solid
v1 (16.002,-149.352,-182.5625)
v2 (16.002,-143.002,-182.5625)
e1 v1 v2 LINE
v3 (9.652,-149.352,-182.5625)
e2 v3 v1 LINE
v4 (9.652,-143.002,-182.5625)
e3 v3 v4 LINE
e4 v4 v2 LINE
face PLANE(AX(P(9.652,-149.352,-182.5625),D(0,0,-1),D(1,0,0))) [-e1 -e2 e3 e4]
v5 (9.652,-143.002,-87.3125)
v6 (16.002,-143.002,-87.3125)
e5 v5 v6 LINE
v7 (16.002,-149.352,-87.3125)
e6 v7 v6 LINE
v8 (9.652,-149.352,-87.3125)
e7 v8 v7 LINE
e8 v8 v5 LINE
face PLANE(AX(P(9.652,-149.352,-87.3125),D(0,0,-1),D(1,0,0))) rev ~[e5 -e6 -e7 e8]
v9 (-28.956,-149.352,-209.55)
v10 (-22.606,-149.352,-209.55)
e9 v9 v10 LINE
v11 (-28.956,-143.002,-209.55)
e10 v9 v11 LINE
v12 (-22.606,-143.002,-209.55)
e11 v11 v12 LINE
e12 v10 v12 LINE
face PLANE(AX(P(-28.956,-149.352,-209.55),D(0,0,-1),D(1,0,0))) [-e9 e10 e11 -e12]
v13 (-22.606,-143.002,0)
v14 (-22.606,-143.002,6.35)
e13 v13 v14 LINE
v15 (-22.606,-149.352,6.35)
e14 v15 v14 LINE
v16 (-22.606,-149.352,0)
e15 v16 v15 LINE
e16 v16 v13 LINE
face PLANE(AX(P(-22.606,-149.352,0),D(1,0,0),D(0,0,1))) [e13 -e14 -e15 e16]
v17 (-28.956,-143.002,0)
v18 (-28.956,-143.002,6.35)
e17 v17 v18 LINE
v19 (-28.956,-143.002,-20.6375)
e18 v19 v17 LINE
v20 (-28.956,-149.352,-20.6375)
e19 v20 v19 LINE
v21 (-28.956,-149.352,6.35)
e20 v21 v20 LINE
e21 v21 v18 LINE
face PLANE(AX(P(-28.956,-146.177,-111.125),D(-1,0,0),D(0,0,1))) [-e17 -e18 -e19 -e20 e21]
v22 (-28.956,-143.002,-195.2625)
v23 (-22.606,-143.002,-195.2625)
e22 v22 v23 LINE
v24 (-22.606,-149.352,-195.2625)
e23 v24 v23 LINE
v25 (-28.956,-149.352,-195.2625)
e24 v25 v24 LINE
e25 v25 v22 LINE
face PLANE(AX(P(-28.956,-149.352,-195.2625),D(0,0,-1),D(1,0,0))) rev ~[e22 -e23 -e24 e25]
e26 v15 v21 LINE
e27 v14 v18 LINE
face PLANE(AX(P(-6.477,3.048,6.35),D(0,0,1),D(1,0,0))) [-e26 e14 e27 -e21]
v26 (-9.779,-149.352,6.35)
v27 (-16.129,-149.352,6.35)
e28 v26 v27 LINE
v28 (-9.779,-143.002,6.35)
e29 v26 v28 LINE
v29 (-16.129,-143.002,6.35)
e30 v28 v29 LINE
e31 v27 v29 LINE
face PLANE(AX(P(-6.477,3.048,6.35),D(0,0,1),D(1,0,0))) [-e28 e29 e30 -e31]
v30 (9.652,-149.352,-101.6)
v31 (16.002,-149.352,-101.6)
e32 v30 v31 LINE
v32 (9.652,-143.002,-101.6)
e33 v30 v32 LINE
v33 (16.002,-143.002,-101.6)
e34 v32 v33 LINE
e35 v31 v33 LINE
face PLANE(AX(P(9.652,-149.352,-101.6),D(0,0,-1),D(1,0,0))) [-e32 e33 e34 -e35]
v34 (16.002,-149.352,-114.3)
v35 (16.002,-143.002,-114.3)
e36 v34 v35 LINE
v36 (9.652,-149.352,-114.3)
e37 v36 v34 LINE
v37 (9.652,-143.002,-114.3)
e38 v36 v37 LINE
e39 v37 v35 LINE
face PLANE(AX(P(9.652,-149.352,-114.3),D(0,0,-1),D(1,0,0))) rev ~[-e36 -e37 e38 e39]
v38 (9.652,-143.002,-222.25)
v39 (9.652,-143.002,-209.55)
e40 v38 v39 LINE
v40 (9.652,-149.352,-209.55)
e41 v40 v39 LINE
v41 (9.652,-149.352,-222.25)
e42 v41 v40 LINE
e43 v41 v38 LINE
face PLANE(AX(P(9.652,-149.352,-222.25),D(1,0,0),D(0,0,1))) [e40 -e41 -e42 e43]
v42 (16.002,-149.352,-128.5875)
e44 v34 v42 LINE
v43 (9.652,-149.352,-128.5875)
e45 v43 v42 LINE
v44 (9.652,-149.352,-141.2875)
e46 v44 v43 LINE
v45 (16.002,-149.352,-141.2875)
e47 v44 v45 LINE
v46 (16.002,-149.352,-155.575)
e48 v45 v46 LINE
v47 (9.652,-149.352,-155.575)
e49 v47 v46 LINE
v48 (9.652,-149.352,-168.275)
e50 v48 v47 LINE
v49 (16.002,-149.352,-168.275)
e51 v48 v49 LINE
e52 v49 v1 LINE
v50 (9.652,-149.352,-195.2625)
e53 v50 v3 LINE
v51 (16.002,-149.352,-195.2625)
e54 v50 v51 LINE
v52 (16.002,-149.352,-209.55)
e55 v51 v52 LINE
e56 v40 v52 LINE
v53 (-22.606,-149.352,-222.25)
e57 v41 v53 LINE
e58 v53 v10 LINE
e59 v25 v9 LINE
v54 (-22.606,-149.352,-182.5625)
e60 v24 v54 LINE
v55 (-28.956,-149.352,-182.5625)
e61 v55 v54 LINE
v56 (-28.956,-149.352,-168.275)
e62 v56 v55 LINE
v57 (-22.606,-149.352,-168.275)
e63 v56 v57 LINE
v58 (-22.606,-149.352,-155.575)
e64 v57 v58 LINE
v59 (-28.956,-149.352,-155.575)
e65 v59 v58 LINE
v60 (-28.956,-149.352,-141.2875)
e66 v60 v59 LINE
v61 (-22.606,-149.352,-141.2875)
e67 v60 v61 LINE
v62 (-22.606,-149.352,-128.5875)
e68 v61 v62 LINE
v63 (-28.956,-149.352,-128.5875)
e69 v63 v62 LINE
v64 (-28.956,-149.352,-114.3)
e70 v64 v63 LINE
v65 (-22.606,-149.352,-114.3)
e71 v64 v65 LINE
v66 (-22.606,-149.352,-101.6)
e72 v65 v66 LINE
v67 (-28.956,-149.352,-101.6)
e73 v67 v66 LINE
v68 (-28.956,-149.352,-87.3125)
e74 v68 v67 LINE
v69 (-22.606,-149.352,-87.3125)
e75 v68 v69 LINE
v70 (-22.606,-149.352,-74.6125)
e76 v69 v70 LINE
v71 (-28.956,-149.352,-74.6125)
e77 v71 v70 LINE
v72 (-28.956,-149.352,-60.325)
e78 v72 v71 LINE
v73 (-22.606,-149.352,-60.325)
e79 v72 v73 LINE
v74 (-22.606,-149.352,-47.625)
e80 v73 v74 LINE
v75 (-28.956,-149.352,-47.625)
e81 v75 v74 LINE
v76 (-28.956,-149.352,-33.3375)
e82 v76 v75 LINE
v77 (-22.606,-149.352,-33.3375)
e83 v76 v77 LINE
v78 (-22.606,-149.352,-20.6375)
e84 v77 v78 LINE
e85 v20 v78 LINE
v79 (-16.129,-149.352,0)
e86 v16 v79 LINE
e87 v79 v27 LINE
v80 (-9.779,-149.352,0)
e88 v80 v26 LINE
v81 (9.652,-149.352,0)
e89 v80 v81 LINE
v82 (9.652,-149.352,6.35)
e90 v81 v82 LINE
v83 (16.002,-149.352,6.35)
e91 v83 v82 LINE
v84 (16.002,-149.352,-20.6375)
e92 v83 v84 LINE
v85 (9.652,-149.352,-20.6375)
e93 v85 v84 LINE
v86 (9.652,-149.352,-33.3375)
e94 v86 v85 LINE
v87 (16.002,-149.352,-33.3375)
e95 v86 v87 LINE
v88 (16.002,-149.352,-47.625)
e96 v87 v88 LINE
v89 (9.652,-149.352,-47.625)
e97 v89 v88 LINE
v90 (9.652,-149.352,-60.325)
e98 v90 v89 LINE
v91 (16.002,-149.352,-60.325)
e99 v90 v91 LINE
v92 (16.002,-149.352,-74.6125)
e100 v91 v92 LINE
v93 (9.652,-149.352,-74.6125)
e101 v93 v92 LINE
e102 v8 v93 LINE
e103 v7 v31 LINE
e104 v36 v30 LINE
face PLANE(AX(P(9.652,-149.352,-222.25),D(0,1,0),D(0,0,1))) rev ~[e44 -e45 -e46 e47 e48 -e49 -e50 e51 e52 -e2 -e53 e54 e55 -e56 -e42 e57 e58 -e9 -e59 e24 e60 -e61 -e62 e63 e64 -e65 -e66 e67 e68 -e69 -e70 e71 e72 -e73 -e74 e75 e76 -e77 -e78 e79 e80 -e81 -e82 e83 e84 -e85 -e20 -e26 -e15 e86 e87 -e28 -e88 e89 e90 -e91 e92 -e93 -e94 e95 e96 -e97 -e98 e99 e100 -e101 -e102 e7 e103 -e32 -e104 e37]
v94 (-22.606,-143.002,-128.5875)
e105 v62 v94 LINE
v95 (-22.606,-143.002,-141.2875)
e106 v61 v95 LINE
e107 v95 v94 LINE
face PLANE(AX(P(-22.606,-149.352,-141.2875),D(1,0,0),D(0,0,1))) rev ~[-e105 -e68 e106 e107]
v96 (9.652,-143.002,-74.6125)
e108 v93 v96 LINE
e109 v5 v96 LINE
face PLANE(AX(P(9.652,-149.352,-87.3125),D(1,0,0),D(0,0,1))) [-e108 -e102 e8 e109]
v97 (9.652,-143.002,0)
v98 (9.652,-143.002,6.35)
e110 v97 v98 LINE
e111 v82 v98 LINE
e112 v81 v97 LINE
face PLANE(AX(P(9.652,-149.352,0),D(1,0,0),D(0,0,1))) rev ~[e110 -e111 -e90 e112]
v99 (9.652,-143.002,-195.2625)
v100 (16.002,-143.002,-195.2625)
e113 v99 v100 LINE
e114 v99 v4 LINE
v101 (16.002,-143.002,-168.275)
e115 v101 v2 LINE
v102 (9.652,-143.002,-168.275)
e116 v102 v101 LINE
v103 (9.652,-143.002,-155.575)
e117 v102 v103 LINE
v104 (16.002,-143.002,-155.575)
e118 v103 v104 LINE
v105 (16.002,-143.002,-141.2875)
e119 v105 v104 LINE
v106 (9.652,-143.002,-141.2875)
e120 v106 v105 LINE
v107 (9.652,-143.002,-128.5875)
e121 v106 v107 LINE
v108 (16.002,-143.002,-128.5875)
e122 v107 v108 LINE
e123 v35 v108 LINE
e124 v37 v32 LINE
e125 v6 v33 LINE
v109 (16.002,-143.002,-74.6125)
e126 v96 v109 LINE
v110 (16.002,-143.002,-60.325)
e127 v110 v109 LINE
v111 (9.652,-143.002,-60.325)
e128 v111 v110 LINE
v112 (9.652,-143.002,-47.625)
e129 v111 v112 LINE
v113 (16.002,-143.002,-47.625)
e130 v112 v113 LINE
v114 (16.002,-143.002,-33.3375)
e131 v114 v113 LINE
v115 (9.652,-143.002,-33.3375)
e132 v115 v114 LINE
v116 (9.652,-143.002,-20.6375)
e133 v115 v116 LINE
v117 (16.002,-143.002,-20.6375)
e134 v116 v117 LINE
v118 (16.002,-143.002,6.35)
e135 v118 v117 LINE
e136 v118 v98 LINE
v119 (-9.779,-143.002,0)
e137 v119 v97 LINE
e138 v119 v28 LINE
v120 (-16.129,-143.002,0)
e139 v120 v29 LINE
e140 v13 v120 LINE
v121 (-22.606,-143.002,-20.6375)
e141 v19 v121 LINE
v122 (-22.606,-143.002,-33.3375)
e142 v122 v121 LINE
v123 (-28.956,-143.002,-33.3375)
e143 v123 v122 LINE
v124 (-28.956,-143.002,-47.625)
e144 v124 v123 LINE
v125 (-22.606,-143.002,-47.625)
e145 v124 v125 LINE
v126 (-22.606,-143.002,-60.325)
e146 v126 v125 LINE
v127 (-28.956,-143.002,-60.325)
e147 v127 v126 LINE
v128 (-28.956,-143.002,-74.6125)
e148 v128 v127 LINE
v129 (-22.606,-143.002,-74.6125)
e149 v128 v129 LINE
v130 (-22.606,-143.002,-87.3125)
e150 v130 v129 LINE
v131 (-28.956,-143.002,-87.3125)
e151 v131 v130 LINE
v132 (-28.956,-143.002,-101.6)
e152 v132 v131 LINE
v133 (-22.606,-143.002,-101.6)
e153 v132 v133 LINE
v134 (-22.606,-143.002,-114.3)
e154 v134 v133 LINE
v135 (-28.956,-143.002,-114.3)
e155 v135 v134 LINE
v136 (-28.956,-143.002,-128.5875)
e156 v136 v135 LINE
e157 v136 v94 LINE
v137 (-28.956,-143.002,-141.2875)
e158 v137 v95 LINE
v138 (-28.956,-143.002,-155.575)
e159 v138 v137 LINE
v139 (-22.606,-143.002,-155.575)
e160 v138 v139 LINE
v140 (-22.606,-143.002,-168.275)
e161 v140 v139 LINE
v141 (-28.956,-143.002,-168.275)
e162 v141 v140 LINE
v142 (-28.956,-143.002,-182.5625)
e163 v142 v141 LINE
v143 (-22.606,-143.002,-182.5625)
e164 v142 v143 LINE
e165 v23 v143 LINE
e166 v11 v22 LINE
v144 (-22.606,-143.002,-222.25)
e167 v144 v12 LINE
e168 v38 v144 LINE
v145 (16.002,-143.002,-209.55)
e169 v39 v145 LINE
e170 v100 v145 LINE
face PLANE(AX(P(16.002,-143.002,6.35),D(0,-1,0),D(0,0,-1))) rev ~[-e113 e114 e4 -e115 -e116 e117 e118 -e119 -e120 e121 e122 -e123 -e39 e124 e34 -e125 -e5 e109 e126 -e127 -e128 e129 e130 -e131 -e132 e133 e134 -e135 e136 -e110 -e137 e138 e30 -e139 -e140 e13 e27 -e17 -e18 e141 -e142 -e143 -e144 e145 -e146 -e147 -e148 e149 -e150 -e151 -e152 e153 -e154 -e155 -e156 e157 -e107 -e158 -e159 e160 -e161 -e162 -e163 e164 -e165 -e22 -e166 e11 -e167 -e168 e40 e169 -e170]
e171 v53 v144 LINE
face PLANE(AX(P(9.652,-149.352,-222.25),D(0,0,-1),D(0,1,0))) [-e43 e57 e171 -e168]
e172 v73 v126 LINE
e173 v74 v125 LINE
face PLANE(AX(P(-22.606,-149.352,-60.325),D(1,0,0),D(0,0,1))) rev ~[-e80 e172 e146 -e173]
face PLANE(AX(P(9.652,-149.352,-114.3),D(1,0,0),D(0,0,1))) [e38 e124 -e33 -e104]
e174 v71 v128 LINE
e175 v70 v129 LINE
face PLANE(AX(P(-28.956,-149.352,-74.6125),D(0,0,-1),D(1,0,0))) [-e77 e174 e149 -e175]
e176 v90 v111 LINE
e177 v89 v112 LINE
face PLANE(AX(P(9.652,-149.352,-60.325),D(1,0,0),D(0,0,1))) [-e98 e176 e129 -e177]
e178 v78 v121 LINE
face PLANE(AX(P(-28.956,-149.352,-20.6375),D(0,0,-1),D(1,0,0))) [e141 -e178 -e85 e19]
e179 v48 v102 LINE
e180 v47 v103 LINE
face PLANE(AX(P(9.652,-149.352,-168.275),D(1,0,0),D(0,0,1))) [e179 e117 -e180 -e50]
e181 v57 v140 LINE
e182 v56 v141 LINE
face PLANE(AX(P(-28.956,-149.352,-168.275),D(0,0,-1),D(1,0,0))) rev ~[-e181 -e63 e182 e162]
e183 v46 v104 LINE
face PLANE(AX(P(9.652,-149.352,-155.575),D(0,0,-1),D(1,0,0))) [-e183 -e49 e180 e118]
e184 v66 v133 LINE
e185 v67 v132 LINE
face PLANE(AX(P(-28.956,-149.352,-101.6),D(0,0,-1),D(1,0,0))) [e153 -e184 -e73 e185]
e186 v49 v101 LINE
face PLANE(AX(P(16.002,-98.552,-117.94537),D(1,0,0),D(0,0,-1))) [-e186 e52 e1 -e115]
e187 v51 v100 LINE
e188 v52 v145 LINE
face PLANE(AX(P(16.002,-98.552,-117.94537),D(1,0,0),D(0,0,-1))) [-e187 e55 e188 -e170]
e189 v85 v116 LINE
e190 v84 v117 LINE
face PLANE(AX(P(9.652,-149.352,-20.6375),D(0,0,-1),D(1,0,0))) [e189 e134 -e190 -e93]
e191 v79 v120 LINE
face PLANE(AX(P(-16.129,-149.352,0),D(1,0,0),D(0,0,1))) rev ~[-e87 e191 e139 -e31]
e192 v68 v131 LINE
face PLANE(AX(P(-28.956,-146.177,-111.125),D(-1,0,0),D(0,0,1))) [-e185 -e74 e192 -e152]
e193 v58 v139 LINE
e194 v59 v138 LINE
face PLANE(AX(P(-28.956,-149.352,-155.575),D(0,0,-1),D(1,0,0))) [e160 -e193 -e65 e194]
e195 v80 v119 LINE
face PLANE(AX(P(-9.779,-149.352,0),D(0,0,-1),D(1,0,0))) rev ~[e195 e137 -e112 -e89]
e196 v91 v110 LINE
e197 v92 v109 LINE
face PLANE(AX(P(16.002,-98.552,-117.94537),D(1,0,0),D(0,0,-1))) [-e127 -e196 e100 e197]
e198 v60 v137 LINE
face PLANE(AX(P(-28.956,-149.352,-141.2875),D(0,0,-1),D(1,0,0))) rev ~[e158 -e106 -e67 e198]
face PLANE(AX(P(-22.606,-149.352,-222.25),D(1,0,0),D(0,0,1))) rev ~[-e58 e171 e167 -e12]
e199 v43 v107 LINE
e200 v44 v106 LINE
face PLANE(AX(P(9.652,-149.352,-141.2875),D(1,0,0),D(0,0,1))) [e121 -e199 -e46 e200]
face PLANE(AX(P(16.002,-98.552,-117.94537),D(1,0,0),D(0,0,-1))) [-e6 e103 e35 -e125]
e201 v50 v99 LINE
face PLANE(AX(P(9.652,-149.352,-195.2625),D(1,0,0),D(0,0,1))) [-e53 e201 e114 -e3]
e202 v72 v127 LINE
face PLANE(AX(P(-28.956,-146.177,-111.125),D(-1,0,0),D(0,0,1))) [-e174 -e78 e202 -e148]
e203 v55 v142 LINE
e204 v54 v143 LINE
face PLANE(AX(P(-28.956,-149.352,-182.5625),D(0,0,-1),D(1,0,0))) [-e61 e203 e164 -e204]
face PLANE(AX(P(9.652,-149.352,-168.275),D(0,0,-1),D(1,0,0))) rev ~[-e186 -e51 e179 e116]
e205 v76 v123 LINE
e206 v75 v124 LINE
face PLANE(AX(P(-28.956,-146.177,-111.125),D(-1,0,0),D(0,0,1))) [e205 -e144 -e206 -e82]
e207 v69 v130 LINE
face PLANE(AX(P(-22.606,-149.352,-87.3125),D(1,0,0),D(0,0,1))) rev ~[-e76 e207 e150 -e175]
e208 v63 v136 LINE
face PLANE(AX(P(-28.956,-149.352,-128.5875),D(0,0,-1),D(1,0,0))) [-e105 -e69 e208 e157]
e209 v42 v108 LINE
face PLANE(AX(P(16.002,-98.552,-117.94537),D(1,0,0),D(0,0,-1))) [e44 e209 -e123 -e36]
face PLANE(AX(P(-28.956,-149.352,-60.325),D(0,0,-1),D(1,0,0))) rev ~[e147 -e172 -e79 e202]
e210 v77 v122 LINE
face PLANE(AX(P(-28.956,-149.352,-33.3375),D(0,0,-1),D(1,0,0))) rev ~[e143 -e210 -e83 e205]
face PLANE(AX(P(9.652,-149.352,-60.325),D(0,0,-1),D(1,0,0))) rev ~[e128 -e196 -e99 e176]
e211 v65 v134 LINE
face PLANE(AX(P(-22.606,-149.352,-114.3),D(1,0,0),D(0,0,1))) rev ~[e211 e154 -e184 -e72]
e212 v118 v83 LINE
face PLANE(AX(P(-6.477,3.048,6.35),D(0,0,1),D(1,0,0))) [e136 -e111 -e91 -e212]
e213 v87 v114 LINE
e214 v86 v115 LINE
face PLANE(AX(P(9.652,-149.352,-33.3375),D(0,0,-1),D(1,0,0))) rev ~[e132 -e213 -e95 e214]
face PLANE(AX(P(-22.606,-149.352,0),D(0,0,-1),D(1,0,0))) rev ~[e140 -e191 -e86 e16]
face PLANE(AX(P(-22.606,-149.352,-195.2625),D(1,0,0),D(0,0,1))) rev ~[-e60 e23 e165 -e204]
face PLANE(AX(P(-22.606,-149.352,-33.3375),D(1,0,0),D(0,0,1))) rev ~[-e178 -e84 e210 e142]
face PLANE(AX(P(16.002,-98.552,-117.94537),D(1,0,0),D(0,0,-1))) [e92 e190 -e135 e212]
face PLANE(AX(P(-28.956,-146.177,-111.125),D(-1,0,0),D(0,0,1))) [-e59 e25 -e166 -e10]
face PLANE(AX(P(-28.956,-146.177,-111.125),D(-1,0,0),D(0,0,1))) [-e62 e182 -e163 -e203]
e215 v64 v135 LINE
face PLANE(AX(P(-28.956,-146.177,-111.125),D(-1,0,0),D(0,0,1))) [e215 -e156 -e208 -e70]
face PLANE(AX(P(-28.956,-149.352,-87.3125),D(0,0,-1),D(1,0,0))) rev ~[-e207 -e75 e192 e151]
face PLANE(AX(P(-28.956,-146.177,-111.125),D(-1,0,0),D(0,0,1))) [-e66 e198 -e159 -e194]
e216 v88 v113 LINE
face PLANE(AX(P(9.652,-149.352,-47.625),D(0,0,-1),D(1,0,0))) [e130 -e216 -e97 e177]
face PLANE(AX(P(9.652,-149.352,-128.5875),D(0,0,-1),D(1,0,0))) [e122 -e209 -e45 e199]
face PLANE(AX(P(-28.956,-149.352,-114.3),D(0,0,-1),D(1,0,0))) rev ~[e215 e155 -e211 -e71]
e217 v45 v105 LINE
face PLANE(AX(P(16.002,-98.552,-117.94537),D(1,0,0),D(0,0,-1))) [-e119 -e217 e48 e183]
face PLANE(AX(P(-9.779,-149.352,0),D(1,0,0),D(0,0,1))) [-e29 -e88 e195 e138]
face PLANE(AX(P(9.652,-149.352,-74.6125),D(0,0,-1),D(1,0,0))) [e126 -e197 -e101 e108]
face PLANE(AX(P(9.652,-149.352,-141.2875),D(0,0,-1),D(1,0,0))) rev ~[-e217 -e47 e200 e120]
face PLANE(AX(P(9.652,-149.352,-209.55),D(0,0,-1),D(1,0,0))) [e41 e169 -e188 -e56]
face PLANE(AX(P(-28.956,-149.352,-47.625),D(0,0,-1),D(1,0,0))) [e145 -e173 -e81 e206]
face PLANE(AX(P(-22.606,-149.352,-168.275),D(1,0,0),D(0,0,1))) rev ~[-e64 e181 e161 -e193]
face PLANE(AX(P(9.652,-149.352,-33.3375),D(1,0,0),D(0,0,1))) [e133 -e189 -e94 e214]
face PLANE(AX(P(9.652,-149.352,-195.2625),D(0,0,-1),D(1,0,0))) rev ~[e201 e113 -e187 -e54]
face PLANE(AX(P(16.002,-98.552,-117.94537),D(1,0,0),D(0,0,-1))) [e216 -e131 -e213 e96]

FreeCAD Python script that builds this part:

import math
import FreeCAD as App
import Part
import Sketcher
from FreeCAD import Vector
Q = App.Units.Quantity


def add_polygon(sketch, points):
    """Adds a closed chain of lines whose ends are joined by coincident constraints."""
    first, n = sketch.GeometryCount, len(points)
    for a, b in zip(points, points[1:] + points[:1]):
        sketch.addGeometry(Part.LineSegment(App.Vector(*a, 0), App.Vector(*b, 0)), False)
    for i in range(n):
        sketch.addConstraint(Sketcher.Constraint("Coincident", first + i, 2, first + (i + 1) % n, 1))

doc = App.newDocument("Part")
body = doc.addObject("PartDesign::Body", "Body")

# Sketch on XY plane
sketch1 = body.newObject("Sketcher::SketchObject", "Sketch")
sketch1.AttachmentSupport = (doc.getObject("XY_Plane"), [""])
sketch1.MapMode = "FlatFace"
add_polygon(sketch1, [(-28.956, 155.448), (-28.956, -149.352), (16.002, -149.352), (16.002, 155.448)])  # lines 0-3
sketch1.addGeometry(Part.LineSegment(Vector(-3.302, -143.002, 0), Vector(-3.302, 133.858, 0)), False)  # 4
sketch1.addGeometry(Part.ArcOfCircle(Part.Circle(Vector(-5.842, 133.858, 0), Vector(0, 0, 1), 2.54), math.radians(0), math.radians(90)), False)  # 5
sketch1.addGeometry(Part.LineSegment(Vector(-5.842, 136.398, 0), Vector(-16.256, 136.398, 0)), False)  # 6
sketch1.addGeometry(Part.LineSegment(Vector(-16.256, 136.398, 0), Vector(-16.256, 143.002, 0)), False)  # 7
sketch1.addGeometry(Part.LineSegment(Vector(-16.256, 143.002, 0), Vector(3.302, 143.002, 0)), False)  # 8
sketch1.addGeometry(Part.LineSegment(Vector(3.302, 143.002, 0), Vector(3.302, -143.002, 0)), False)  # 9
sketch1.addGeometry(Part.LineSegment(Vector(3.302, -143.002, 0), Vector(-3.302, -143.002, 0)), False)  # 10
sketch1.addConstraint([
    Sketcher.Constraint("Tangent", 4, 2, 5, 1),
    Sketcher.Constraint("Tangent", 5, 2, 6, 1),
    Sketcher.Constraint("Coincident", 6, 2, 7, 1),
    Sketcher.Constraint("Coincident", 7, 2, 8, 1),
    Sketcher.Constraint("Coincident", 8, 2, 9, 1),
    Sketcher.Constraint("Coincident", 9, 2, 10, 1),
    Sketcher.Constraint("Coincident", 10, 2, 4, 1),
    Sketcher.Constraint("Vertical", 0),
    Sketcher.Constraint("Horizontal", 1),
    Sketcher.Constraint("Vertical", 2),
    Sketcher.Constraint("Horizontal", 3),
    Sketcher.Constraint("Vertical", 4),
    Sketcher.Constraint("Horizontal", 6),
    Sketcher.Constraint("Vertical", 7),
    Sketcher.Constraint("Horizontal", 8),
    Sketcher.Constraint("Vertical", 9),
    Sketcher.Constraint("Horizontal", 10),
    Sketcher.Constraint("Symmetric", 8, 2, 10, 2, -1, 1),
    Sketcher.Constraint("Equal", 10, 7),
    Sketcher.Constraint("Radius", 5, Q("0.1 in")),
    Sketcher.Constraint("DistanceY", 0, 2, 0, 1, Q("12 in")),
    Sketcher.Constraint("DistanceY", 4, 1, 4, 2, Q("10.9 in")),
    Sketcher.Constraint("DistanceX", 1, 1, 1, 2, Q("1.77 in")),
    Sketcher.Constraint("DistanceX", 6, 2, 6, 1, Q("0.41 in")),
    Sketcher.Constraint("DistanceX", 8, 1, 8, 2, Q("0.77 in")),
    Sketcher.Constraint("DistanceX", 3, 2, 6, 2, Q("0.5 in")),
    Sketcher.Constraint("DistanceY", 0, 2, -1, 1, Q("5.88 in")),
])
pad1 = body.newObject("PartDesign::Pad", "Pad")
pad1.Profile = sketch1
pad1.Length = Q("0.25 in")

# Sketch on YZ plane
sketch2 = body.newObject("Sketcher::SketchObject", "Sketch001")
sketch2.AttachmentSupport = (doc.getObject("YZ_Plane"), [""])
sketch2.MapMode = "FlatFace"
sketch2.AttachmentOffset = App.Placement(Vector(0, 0, 0.63 * 25.4), App.Rotation())
add_polygon(sketch2, [(-60.452, -222.25), (-47.752, -222.25), (-47.752, 6.35), (-149.352, 6.35), (-149.352, -222.25), (-136.652, -222.25), (-136.652, -228.6), (-119.718667, -228.6), (-119.718667, -222.25), (-107.018667, -222.25), (-107.018667, -228.6), (-90.085333, -228.6), (-90.085333, -222.25), (-77.385333, -222.25), (-77.385333, -228.6), (-60.452, -228.6)])  # lines 0-15
sketch2.addGeometry(Part.LineSegment(Vector(-111.512, -11.4, 0), Vector(-116.592, -11.4, 0)), False)  # 16
sketch2.addGeometry(Part.ArcOfCircle(Part.Circle(Vector(-116.592, -9.9, 0), Vector(0, 0, 1), 1.5), math.radians(90), math.radians(270)), False)  # 17
sketch2.addGeometry(Part.LineSegment(Vector(-116.592, -8.4, 0), Vector(-111.512, -8.4, 0)), False)  # 18
sketch2.addGeometry(Part.ArcOfCircle(Part.Circle(Vector(-111.512, -9.9, 0), Vector(0, 0, 1), 1.5), math.radians(-90), math.radians(90)), False)  # 19
sketch2.addGeometry(Part.ArcOfCircle(Part.Circle(Vector(-111.512, -40.9, 0), Vector(0, 0, 1), 1.5), math.radians(-90), math.radians(90)), False)  # 20
sketch2.addGeometry(Part.LineSegment(Vector(-111.512, -42.4, 0), Vector(-116.592, -42.4, 0)), False)  # 21
sketch2.addGeometry(Part.ArcOfCircle(Part.Circle(Vector(-116.592, -40.9, 0), Vector(0, 0, 1), 1.5), math.radians(90), math.radians(270)), False)  # 22
sketch2.addGeometry(Part.LineSegment(Vector(-116.592, -39.4, 0), Vector(-111.512, -39.4, 0)), False)  # 23
sketch2.addGeometry(Part.LineSegment(Vector(-96.012, -36.4, 0), Vector(-101.092, -36.4, 0)), False)  # 24
sketch2.addGeometry(Part.ArcOfCircle(Part.Circle(Vector(-101.092, -25.4, 0), Vector(0, 0, 1), 11), math.radians(90), math.radians(270)), False)  # 25
sketch2.addGeometry(Part.LineSegment(Vector(-101.092, -14.4, 0), Vector(-96.012, -14.4, 0)), False)  # 26
sketch2.addGeometry(Part.ArcOfCircle(Part.Circle(Vector(-96.012, -25.4, 0), Vector(0, 0, 1), 11), math.radians(-90), math.radians(90)), False)  # 27
sketch2.addGeometry(Part.LineSegment(Vector(-80.512, -11.4, 0), Vector(-85.592, -11.4, 0)), False)  # 28
sketch2.addGeometry(Part.ArcOfCircle(Part.Circle(Vector(-85.592, -9.9, 0), Vector(0, 0, 1), 1.5), math.radians(90), math.radians(270)), False)  # 29
sketch2.addGeometry(Part.LineSegment(Vector(-85.592, -8.4, 0), Vector(-80.512, -8.4, 0)), False)  # 30
sketch2.addGeometry(Part.ArcOfCircle(Part.Circle(Vector(-80.512, -9.9, 0), Vector(0, 0, 1), 1.5), math.radians(-90), math.radians(90)), False)  # 31
sketch2.addGeometry(Part.LineSegment(Vector(-80.512, -42.4, 0), Vector(-85.592, -42.4, 0)), False)  # 32
sketch2.addGeometry(Part.ArcOfCircle(Part.Circle(Vector(-85.592, -40.9, 0), Vector(0, 0, 1), 1.5), math.radians(90), math.radians(270)), False)  # 33
sketch2.addGeometry(Part.LineSegment(Vector(-85.592, -39.4, 0), Vector(-80.512, -39.4, 0)), False)  # 34
sketch2.addGeometry(Part.ArcOfCircle(Part.Circle(Vector(-80.512, -40.9, 0), Vector(0, 0, 1), 1.5), math.radians(-90), math.radians(90)), False)  # 35
sketch2.addConstraint([
    Sketcher.Constraint("Tangent", 16, 2, 17, 2),
    Sketcher.Constraint("Tangent", 17, 1, 18, 1),
    Sketcher.Constraint("Tangent", 18, 2, 19, 2),
    Sketcher.Constraint("Tangent", 19, 1, 16, 1),
    Sketcher.Constraint("Tangent", 20, 1, 21, 1),
    Sketcher.Constraint("Tangent", 21, 2, 22, 2),
    Sketcher.Constraint("Tangent", 22, 1, 23, 1),
    Sketcher.Constraint("Tangent", 23, 2, 20, 2),
    Sketcher.Constraint("Tangent", 24, 2, 25, 2),
    Sketcher.Constraint("Tangent", 25, 1, 26, 1),
    Sketcher.Constraint("Tangent", 26, 2, 27, 2),
    Sketcher.Constraint("Tangent", 27, 1, 24, 1),
    Sketcher.Constraint("Tangent", 28, 2, 29, 2),
    Sketcher.Constraint("Tangent", 29, 1, 30, 1),
    Sketcher.Constraint("Tangent", 30, 2, 31, 2),
    Sketcher.Constraint("Tangent", 31, 1, 28, 1),
    Sketcher.Constraint("Tangent", 32, 2, 33, 2),
    Sketcher.Constraint("Tangent", 33, 1, 34, 1),
    Sketcher.Constraint("Tangent", 34, 2, 35, 2),
    Sketcher.Constraint("Tangent", 35, 1, 32, 1),
    Sketcher.Constraint("Horizontal", 0),
    Sketcher.Constraint("Vertical", 1),
    Sketcher.Constraint("Horizontal", 2),
    Sketcher.Constraint("Vertical", 3),
    Sketcher.Constraint("Horizontal", 4),
    Sketcher.Constraint("Vertical", 5),
    Sketcher.Constraint("Horizontal", 6),
    Sketcher.Constraint("Vertical", 7),
    Sketcher.Constraint("Horizontal", 8),
    Sketcher.Constraint("Vertical", 9),
    Sketcher.Constraint("Horizontal", 10),
    Sketcher.Constraint("Vertical", 11),
    Sketcher.Constraint("Horizontal", 12),
    Sketcher.Constraint("Vertical", 13),
    Sketcher.Constraint("Horizontal", 14),
    Sketcher.Constraint("Vertical", 15),
    Sketcher.Constraint("Horizontal", 16),
    Sketcher.Constraint("Horizontal", 18),
    Sketcher.Constraint("Horizontal", 21),
    Sketcher.Constraint("Horizontal", 23),
    Sketcher.Constraint("Horizontal", 24),
    Sketcher.Constraint("Horizontal", 26),
    Sketcher.Constraint("Horizontal", 28),
    Sketcher.Constraint("Horizontal", 30),
    Sketcher.Constraint("Horizontal", 32),
    Sketcher.Constraint("Horizontal", 34),
    Sketcher.Constraint("Equal", 19, 20),
    Sketcher.Constraint("Equal", 22, 29),
    Sketcher.Constraint("Equal", 31, 33),
    Sketcher.Constraint("Horizontal", 19, 3, 29, 3),
    Sketcher.Constraint("Horizontal", 22, 3, 33, 3),
    Sketcher.Constraint("Horizontal", 0, 2, 3, 2),
    Sketcher.Constraint("Horizontal", 4, 2, 7, 2),
    Sketcher.Constraint("Horizontal", 6, 2, 9, 2),
    Sketcher.Constraint("Horizontal", 8, 2, 11, 2),
    Sketcher.Constraint("Horizontal", 10, 2, 13, 2),
    Sketcher.Constraint("Vertical", 19, 3, 20, 3),
    Sketcher.Constraint("Vertical", 17, 3, 22, 3),
    Sketcher.Constraint("Vertical", 29, 3, 33, 3),
    Sketcher.Constraint("Vertical", 31, 3, 35, 3),
    Sketcher.Constraint("Equal", 0, 4),
    Sketcher.Constraint("Equal", 4, 8),
    Sketcher.Constraint("Equal", 6, 10),
    Sketcher.Constraint("Equal", 8, 12),
    Sketcher.Constraint("Equal", 10, 14),
    Sketcher.Constraint("Equal", 23, 24),
    Sketcher.Constraint("Equal", 26, 28),
    Sketcher.Constraint("DistanceX", 2, 2, 2, 1, Q("4 in")),
    Sketcher.Constraint("DistanceY", 1, 1, 1, 2, Q("9 in")),
    Sketcher.Constraint("DistanceX", 0, 1, 0, 2, Q("0.5 in")),
    Sketcher.Constraint("DistanceX", 16, 2, 16, 1, Q("0.2 in")),
    Sketcher.Constraint("DistanceY", 25, 3, -1, 1, Q("1 in")),
    Sketcher.Constraint("DistanceY", 5, 2, -1, 1, Q("9 in")),
    Sketcher.Constraint("DistanceY", 5, 2, 5, 1, Q("0.25 in")),
    Sketcher.Constraint("DistanceX", 27, 3, 0, 2, Q("1.9 in")),
    Sketcher.Constraint("DistanceX", 25, 3, -1, 1, Q("3.98 in")),
    Sketcher.Constraint("Radius", 17, Q("1.5 mm")),
    Sketcher.Constraint("Radius", 25, Q("11 mm")),
    Sketcher.Constraint("DistanceX", 17, 3, -1, 1, Q("116.592 mm")),
    Sketcher.Constraint("DistanceY", 17, 3, -1, 1, Q("9.9 mm")),
    Sketcher.Constraint("DistanceY", 20, 3, -1, 1, Q("40.9 mm")),
    Sketcher.Constraint("DistanceX", 29, 3, -1, 1, Q("85.592 mm")),
])
pad2 = body.newObject("PartDesign::Pad", "Pad001")
pad2.Profile = sketch2
pad2.Length = Q("0.25 in")
pad2.Reversed = True

# Sketch on YZ plane
sketch3 = body.newObject("Sketcher::SketchObject", "Sketch002")
sketch3.AttachmentSupport = (doc.getObject("YZ_Plane"), [""])
sketch3.MapMode = "FlatFace"
sketch3.AttachmentOffset = App.Placement(Vector(0, 0, 0.38 * 25.4), App.Rotation())
add_polygon(sketch3, [(-143.002, -222.25), (-149.352, -222.25), (-149.352, 0), (-143.002, 0)])  # lines 0-3
sketch3.addConstraint([
    Sketcher.Constraint("Horizontal", 0),
    Sketcher.Constraint("Vertical", 1),
    Sketcher.Constraint("Horizontal", 2),
    Sketcher.Constraint("Vertical", 3),
    Sketcher.Constraint("PointOnObject", 1, 2, -1),
    Sketcher.Constraint("DistanceX", 0, 2, 0, 1, Q("0.25 in")),
    Sketcher.Constraint("DistanceY", 1, 1, 1, 2, Q("8.75 in")),
    Sketcher.Constraint("DistanceX", 0, 2, -1, 1, Q("5.88 in")),
])
pad3 = body.newObject("PartDesign::Pad", "Pad002")
pad3.Profile = sketch3
pad3.Length = Q("1.52 in")
pad3.Reversed = True

# Sketch on YZ plane
sketch4 = body.newObject("Sketcher::SketchObject", "Sketch003")
sketch4.AttachmentSupport = (doc.getObject("YZ_Plane"), [""])
sketch4.MapMode = "FlatFace"
sketch4.AttachmentOffset = App.Placement(Vector(0, 0, 0.63 * 25.4), App.Rotation())
add_polygon(sketch4, [(180.723006, 6.35), (-143.002, 6.35), (-143.002, -327.022739), (180.723006, -327.022739)])  # lines 0-3
sketch4.addConstraint([
    Sketcher.Constraint("Horizontal", 0),
    Sketcher.Constraint("Vertical", 1),
    Sketcher.Constraint("Horizontal", 2),
    Sketcher.Constraint("Vertical", 3),
    Sketcher.Constraint("DistanceX", 0, 2, -1, 1, Q("5.63 in")),
    Sketcher.Constraint("DistanceY", -1, 1, 0, 2, Q("0.25 in")),
    Sketcher.Constraint("DistanceY", 1, 2, 1, 1, Q("333.372739 mm")),
    Sketcher.Constraint("DistanceX", 0, 2, 0, 1, Q("323.725006 mm")),
])
pocket1 = body.newObject("PartDesign::Pocket", "Pocket")
pocket1.Profile = sketch4
pocket1.Type = "ThroughAll"

# Sketch on XZ plane
sketch5 = body.newObject("Sketcher::SketchObject", "Sketch004")
sketch5.AttachmentSupport = (doc.getObject("XZ_Plane"), [""])
sketch5.MapMode = "FlatFace"
sketch5.AttachmentOffset = App.Placement(Vector(0, 0, 5.88 * 25.4), App.Rotation())
add_polygon(sketch5, [(9.652, -20.6375), (9.652, -33.3375), (16.002, -33.3375), (16.002, -20.6375)])  # lines 0-3
add_polygon(sketch5, [(-28.956, -20.6375), (-28.956, -33.3375), (-22.606, -33.3375), (-22.606, -20.6375)])  # lines 4-7
add_polygon(sketch5, [(-28.956, -47.625), (-28.956, -60.325), (-22.606, -60.325), (-22.606, -47.625)])  # lines 8-11
add_polygon(sketch5, [(-28.956, -74.6125), (-28.956, -87.3125), (-22.606, -87.3125), (-22.606, -74.6125)])  # lines 12-15
add_polygon(sketch5, [(-28.956, -101.6), (-28.956, -114.3), (-22.606, -114.3), (-22.606, -101.6)])  # lines 16-19
add_polygon(sketch5, [(-28.956, -128.5875), (-28.956, -141.2875), (-22.606, -141.2875), (-22.606, -128.5875)])  # lines 20-23
add_polygon(sketch5, [(-28.956, -155.575), (-28.956, -168.275), (-22.606, -168.275), (-22.606, -155.575)])  # lines 24-27
add_polygon(sketch5, [(-28.956, -182.5625), (-28.956, -195.2625), (-22.606, -195.2625), (-22.606, -182.5625)])  # lines 28-31
add_polygon(sketch5, [(-28.956, -209.55), (-28.956, -222.25), (-22.606, -222.25), (-22.606, -209.55)])  # lines 32-35
add_polygon(sketch5, [(9.652, -209.55), (9.652, -222.25), (16.002, -222.25), (16.002, -209.55)])  # lines 36-39
add_polygon(sketch5, [(9.652, -155.575), (9.652, -168.275), (16.002, -168.275), (16.002, -155.575)])  # lines 40-43
add_polygon(sketch5, [(9.652, -128.5875), (9.652, -141.2875), (16.002, -141.2875), (16.002, -128.5875)])  # lines 44-47
add_polygon(sketch5, [(9.652, -101.6), (9.652, -114.3), (16.002, -114.3), (16.002, -101.6)])  # lines 48-51
add_polygon(sketch5, [(9.652, -74.6125), (9.652, -87.3125), (16.002, -87.3125), (16.002, -74.6125)])  # lines 52-55
add_polygon(sketch5, [(9.652, -47.625), (9.652, -60.325), (16.002, -60.325), (16.002, -47.625)])  # lines 56-59
add_polygon(sketch5, [(9.652, -182.5625), (9.652, -195.2625), (16.002, -195.2625), (16.002, -182.5625)])  # lines 60-63
sketch5.addConstraint([
    Sketcher.Constraint("Vertical", 0),
    Sketcher.Constraint("Horizontal", 1),
    Sketcher.Constraint("Vertical", 2),
    Sketcher.Constraint("Horizontal", 3),
    Sketcher.Constraint("Vertical", 4),
    Sketcher.Constraint("Horizontal", 5),
    Sketcher.Constraint("Vertical", 6),
    Sketcher.Constraint("Horizontal", 7),
    Sketcher.Constraint("Vertical", 8),
    Sketcher.Constraint("Horizontal", 9),
    Sketcher.Constraint("Vertical", 10),
    Sketcher.Constraint("Horizontal", 11),
    Sketcher.Constraint("Vertical", 12),
    Sketcher.Constraint("Horizontal", 13),
    Sketcher.Constraint("Vertical", 14),
    Sketcher.Constraint("Horizontal", 15),
    Sketcher.Constraint("Vertical", 16),
    Sketcher.Constraint("Horizontal", 17),
    Sketcher.Constraint("Vertical", 18),
    Sketcher.Constraint("Horizontal", 19),
    Sketcher.Constraint("Vertical", 20),
    Sketcher.Constraint("Horizontal", 21),
    Sketcher.Constraint("Vertical", 22),
    Sketcher.Constraint("Horizontal", 23),
    Sketcher.Constraint("Vertical", 24),
    Sketcher.Constraint("Horizontal", 25),
    Sketcher.Constraint("Vertical", 26),
    Sketcher.Constraint("Horizontal", 27),
    Sketcher.Constraint("Vertical", 28),
    Sketcher.Constraint("Horizontal", 29),
    Sketcher.Constraint("Vertical", 30),
    Sketcher.Constraint("Horizontal", 31),
    Sketcher.Constraint("Vertical", 32),
    Sketcher.Constraint("Horizontal", 33),
    Sketcher.Constraint("Vertical", 34),
    Sketcher.Constraint("Horizontal", 35),
    Sketcher.Constraint("Vertical", 36),
    Sketcher.Constraint("Horizontal", 37),
    Sketcher.Constraint("Vertical", 38),
    Sketcher.Constraint("Horizontal", 39),
    Sketcher.Constraint("Vertical", 40),
    Sketcher.Constraint("Horizontal", 41),
    Sketcher.Constraint("Vertical", 42),
    Sketcher.Constraint("Horizontal", 43),
    Sketcher.Constraint("Vertical", 44),
    Sketcher.Constraint("Horizontal", 45),
    Sketcher.Constraint("Vertical", 46),
    Sketcher.Constraint("Horizontal", 47),
    Sketcher.Constraint("Vertical", 48),
    Sketcher.Constraint("Horizontal", 49),
    Sketcher.Constraint("Vertical", 50),
    Sketcher.Constraint("Horizontal", 51),
    Sketcher.Constraint("Vertical", 52),
    Sketcher.Constraint("Horizontal", 53),
    Sketcher.Constraint("Vertical", 54),
    Sketcher.Constraint("Horizontal", 55),
    Sketcher.Constraint("Vertical", 56),
    Sketcher.Constraint("Horizontal", 57),
    Sketcher.Constraint("Vertical", 58),
    Sketcher.Constraint("Horizontal", 59),
    Sketcher.Constraint("Vertical", 60),
    Sketcher.Constraint("Horizontal", 61),
    Sketcher.Constraint("Vertical", 62),
    Sketcher.Constraint("Horizontal", 63),
    Sketcher.Constraint("Horizontal", 1, 2, 4, 2),
    Sketcher.Constraint("Horizontal", 3, 2, 6, 2),
    Sketcher.Constraint("Horizontal", 33, 2, 36, 2),
    Sketcher.Constraint("Horizontal", 35, 2, 38, 2),
    Sketcher.Constraint("Horizontal", 25, 2, 40, 2),
    Sketcher.Constraint("Horizontal", 27, 2, 42, 2),
    Sketcher.Constraint("Horizontal", 21, 2, 44, 2),
    Sketcher.Constraint("Horizontal", 23, 2, 46, 2),
    Sketcher.Constraint("Horizontal", 17, 2, 48, 2),
    Sketcher.Constraint("Horizontal", 19, 2, 50, 2),
    Sketcher.Constraint("Horizontal", 13, 2, 52, 2),
    Sketcher.Constraint("Horizontal", 15, 2, 54, 2),
    Sketcher.Constraint("Horizontal", 9, 2, 56, 2),
    Sketcher.Constraint("Horizontal", 11, 2, 58, 2),
    Sketcher.Constraint("Horizontal", 29, 2, 60, 2),
    Sketcher.Constraint("Horizontal", 31, 2, 62, 2),
    Sketcher.Constraint("Vertical", 7, 2, 8, 2),
    Sketcher.Constraint("Vertical", 6, 2, 9, 2),
    Sketcher.Constraint("Vertical", 11, 2, 12, 2),
    Sketcher.Constraint("Vertical", 10, 2, 13, 2),
    Sketcher.Constraint("Vertical", 15, 2, 16, 2),
    Sketcher.Constraint("Vertical", 14, 2, 17, 2),
    Sketcher.Constraint("Vertical", 19, 2, 20, 2),
    Sketcher.Constraint("Vertical", 18, 2, 21, 2),
    Sketcher.Constraint("Vertical", 23, 2, 24, 2),
    Sketcher.Constraint("Vertical", 22, 2, 25, 2),
    Sketcher.Constraint("Vertical", 27, 2, 28, 2),
    Sketcher.Constraint("Vertical", 26, 2, 29, 2),
    Sketcher.Constraint("Vertical", 31, 2, 32, 2),
    Sketcher.Constraint("Vertical", 30, 2, 33, 2),
    Sketcher.Constraint("Vertical", 3, 2, 36, 2),
    Sketcher.Constraint("Vertical", 2, 2, 37, 2),
    Sketcher.Constraint("Vertical", 39, 2, 40, 2),
    Sketcher.Constraint("Vertical", 38, 2, 41, 2),
    Sketcher.Constraint("Vertical", 43, 2, 44, 2),
    Sketcher.Constraint("Vertical", 42, 2, 45, 2),
    Sketcher.Constraint("Vertical", 47, 2, 48, 2),
    Sketcher.Constraint("Vertical", 46, 2, 49, 2),
    Sketcher.Constraint("Vertical", 51, 2, 52, 2),
    Sketcher.Constraint("Vertical", 50, 2, 53, 2),
    Sketcher.Constraint("Vertical", 55, 2, 56, 2),
    Sketcher.Constraint("Vertical", 54, 2, 57, 2),
    Sketcher.Constraint("Vertical", 59, 2, 60, 2),
    Sketcher.Constraint("Vertical", 58, 2, 61, 2),
    Sketcher.Constraint("Equal", 3, 5),
    Sketcher.Constraint("Equal", 6, 8),
    Sketcher.Constraint("Equal", 10, 12),
    Sketcher.Constraint("Equal", 14, 16),
    Sketcher.Constraint("Equal", 18, 20),
    Sketcher.Constraint("Equal", 22, 24),
    Sketcher.Constraint("Equal", 26, 28),
    Sketcher.Constraint("Equal", 30, 32),
    Sketcher.Constraint("DistanceY", 0, 2, 0, 1, Q("0.5 in")),
    Sketcher.Constraint("DistanceY", 18, 2, -1, 1, Q("4 in")),
    Sketcher.Constraint("DistanceX", 1, 1, 1, 2, Q("0.25 in")),
    Sketcher.Constraint("DistanceX", -1, 1, 0, 2, Q("0.38 in")),
    Sketcher.Constraint("DistanceX", 4, 2, -1, 1, Q("1.14 in")),
    Sketcher.Constraint("DistanceY", 32, 2, -1, 1, Q("8.75 in")),
    Sketcher.Constraint("DistanceY", 0, 2, -1, 1, Q("1.3125 in")),
    Sketcher.Constraint("DistanceY", 8, 2, -1, 1, Q("2.375 in")),
    Sketcher.Constraint("DistanceY", 12, 2, -1, 1, Q("3.4375 in")),
    Sketcher.Constraint("DistanceY", 20, 2, -1, 1, Q("5.5625 in")),
    Sketcher.Constraint("DistanceY", 24, 2, -1, 1, Q("6.625 in")),
    Sketcher.Constraint("DistanceY", 28, 2, -1, 1, Q("7.6875 in")),
])
pocket2 = body.newObject("PartDesign::Pocket", "Pocket001")
pocket2.Profile = sketch5
pocket2.Length = Q("0.25 in")

# Sketch on XZ plane
sketch6 = body.newObject("Sketcher::SketchObject", "Sketch005")
sketch6.AttachmentSupport = (doc.getObject("XZ_Plane"), [""])
sketch6.MapMode = "FlatFace"
sketch6.AttachmentOffset = App.Placement(Vector(0, 0, 5.88 * 25.4), App.Rotation())
add_polygon(sketch6, [(-22.606, 6.35), (-22.606, 0), (-16.129, 0), (-16.129, 6.35)])  # lines 0-3
add_polygon(sketch6, [(-9.779, 6.35), (-9.779, 0), (9.652, 0), (9.652, 6.35)])  # lines 4-7
sketch6.addConstraint([
    Sketcher.Constraint("Vertical", 0),
    Sketcher.Constraint("Horizontal", 1),
    Sketcher.Constraint("Vertical", 2),
    Sketcher.Constraint("Horizontal", 3),
    Sketcher.Constraint("Vertical", 4),
    Sketcher.Constraint("Horizontal", 5),
    Sketcher.Constraint("Vertical", 6),
    Sketcher.Constraint("Horizontal", 7),
    Sketcher.Constraint("PointOnObject", 0, 2, -1),
    Sketcher.Constraint("PointOnObject", 4, 2, -1),
    Sketcher.Constraint("Horizontal", 3, 2, 6, 2),
    Sketcher.Constraint("DistanceY", 0, 2, 0, 1, Q("0.25 in")),
    Sketcher.Constraint("DistanceX", 1, 1, 1, 2, Q("0.255 in")),
    Sketcher.Constraint("DistanceX", 5, 1, 5, 2, Q("0.765 in")),
    Sketcher.Constraint("DistanceX", 0, 2, -1, 1, Q("0.89 in")),
    Sketcher.Constraint("DistanceX", -1, 1, 5, 2, Q("0.38 in")),
])
pocket3 = body.newObject("PartDesign::Pocket", "Pocket002")
pocket3.Profile = sketch6
pocket3.Type = "ThroughAll"

doc.recompute()
